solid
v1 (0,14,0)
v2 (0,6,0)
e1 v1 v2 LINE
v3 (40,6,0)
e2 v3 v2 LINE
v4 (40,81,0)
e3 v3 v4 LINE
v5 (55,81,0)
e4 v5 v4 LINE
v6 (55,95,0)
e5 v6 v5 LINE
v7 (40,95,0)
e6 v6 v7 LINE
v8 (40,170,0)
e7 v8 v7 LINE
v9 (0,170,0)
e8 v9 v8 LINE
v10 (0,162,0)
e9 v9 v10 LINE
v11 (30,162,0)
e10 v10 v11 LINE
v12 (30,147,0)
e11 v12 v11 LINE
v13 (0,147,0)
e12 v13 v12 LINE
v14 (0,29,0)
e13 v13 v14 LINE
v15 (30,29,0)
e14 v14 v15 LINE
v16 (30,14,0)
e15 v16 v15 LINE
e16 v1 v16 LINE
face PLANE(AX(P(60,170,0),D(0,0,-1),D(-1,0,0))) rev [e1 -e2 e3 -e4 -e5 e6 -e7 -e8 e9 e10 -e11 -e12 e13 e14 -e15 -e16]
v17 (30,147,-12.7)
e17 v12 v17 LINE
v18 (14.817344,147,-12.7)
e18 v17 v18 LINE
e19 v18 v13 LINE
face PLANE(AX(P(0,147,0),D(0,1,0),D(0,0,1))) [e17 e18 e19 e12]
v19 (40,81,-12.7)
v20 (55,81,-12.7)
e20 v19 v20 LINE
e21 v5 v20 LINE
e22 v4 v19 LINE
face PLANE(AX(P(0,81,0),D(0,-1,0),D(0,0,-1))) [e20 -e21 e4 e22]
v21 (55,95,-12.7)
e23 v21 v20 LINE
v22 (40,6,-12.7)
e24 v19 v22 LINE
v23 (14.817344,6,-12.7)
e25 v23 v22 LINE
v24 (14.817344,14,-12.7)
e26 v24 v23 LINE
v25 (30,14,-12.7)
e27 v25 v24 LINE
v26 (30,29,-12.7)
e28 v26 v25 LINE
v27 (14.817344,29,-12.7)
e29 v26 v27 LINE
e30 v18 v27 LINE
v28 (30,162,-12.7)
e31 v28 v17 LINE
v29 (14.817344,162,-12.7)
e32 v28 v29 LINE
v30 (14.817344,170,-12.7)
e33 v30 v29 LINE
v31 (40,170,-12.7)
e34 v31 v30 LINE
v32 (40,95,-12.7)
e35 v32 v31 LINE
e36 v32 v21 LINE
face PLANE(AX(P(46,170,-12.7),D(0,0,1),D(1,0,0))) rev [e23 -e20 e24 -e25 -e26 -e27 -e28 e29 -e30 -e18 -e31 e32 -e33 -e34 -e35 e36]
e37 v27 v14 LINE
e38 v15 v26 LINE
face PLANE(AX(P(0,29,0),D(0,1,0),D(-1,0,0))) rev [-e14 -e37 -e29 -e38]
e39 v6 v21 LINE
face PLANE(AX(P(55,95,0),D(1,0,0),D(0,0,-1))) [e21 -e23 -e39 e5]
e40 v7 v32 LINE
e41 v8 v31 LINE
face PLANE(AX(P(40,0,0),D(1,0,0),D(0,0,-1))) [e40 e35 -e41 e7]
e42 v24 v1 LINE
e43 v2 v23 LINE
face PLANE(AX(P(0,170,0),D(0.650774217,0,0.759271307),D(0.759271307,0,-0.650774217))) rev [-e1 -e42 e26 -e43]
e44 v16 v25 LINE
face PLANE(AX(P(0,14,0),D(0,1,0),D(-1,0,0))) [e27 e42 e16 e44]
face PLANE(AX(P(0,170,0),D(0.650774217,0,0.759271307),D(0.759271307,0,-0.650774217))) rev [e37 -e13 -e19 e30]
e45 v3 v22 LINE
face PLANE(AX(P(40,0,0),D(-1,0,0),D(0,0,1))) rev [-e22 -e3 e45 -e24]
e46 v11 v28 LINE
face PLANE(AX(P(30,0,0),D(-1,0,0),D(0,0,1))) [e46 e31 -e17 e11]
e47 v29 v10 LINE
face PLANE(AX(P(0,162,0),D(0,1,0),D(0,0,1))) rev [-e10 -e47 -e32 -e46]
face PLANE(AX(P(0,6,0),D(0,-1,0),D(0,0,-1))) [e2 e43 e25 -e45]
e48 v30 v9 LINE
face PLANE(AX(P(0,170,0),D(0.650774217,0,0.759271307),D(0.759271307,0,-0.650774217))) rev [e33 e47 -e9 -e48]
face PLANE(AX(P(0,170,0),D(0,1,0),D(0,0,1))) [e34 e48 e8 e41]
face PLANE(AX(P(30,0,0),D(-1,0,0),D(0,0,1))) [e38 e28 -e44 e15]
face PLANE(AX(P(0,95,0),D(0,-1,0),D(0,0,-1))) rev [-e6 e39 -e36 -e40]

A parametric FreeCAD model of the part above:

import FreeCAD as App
import Part
import Sketcher
Q = App.Units.Quantity

doc = App.newDocument("Part")
body = doc.addObject("PartDesign::Body", "Body")

# Sketch on XZ plane
sketch1 = doc.addObject("Sketcher::SketchObject", "Sketch")
body.addObject(sketch1)
sketch1.AttachmentSupport = (doc.XZ_Plane, [""])
sketch1.MapMode = "FlatFace"
sketch1.addGeometry([
    Part.LineSegment(App.Vector(18, -15, 0), App.Vector(0, 0, 0)),
    Part.LineSegment(App.Vector(0, 0, 0), App.Vector(60, 0, 0)),
    Part.LineSegment(App.Vector(60, 0, 0), App.Vector(60, -15, 0)),
    Part.LineSegment(App.Vector(60, -15, 0), App.Vector(18, -15, 0)),
], False)
sketch1.addConstraint([
    Sketcher.Constraint("Coincident", 0, 2, 1, 1),
    Sketcher.Constraint("Coincident", 1, 2, 2, 1),
    Sketcher.Constraint("Coincident", 2, 2, 3, 1),
    Sketcher.Constraint("Coincident", 3, 2, 0, 1),
    Sketcher.Constraint("Horizontal", 1),
    Sketcher.Constraint("Vertical", 2),
    Sketcher.Constraint("Horizontal", 3),
    Sketcher.Constraint("Coincident", 0, 2, -1, 1),
    Sketcher.Constraint("DistanceX", 1, 1, 1, 2, Q("60 mm")),
    Sketcher.Constraint("DistanceY", 2, 2, 2, 1, Q("15 mm")),
    Sketcher.Constraint("Angle", 0, Q("139.4 deg")),
])
pad1 = doc.addObject("PartDesign::Pad", "Pad")
body.addObject(pad1)
pad1.Profile = sketch1
pad1.Length = 170
pad1.Reversed = True

# Sketch on XY plane
sketch2 = doc.addObject("Sketcher::SketchObject", "Sketch001")
body.addObject(sketch2)
sketch2.AttachmentSupport = (doc.XY_Plane, [""])
sketch2.MapMode = "FlatFace"
sketch2.AttachmentOffset = App.Placement(App.Vector(0, 0, -15), App.Rotation())
sketch2.addGeometry([
    Part.LineSegment(App.Vector(60, 27, 0), App.Vector(60, 0, 0)),  # 0
    Part.LineSegment(App.Vector(60, 0, 0), App.Vector(52, 0, 0)),  # 1
    Part.LineSegment(App.Vector(52, 0, 0), App.Vector(52, 27, 0)),  # 2
    Part.LineSegment(App.Vector(52, 27, 0), App.Vector(60, 27, 0)),  # 3
    Part.LineSegment(App.Vector(60, 170, 0), App.Vector(60, 143, 0)),  # 4
    Part.LineSegment(App.Vector(60, 143, 0), App.Vector(52, 143, 0)),  # 5
    Part.LineSegment(App.Vector(52, 143, 0), App.Vector(52, 170, 0)),  # 6
    Part.LineSegment(App.Vector(52, 170, 0), App.Vector(60, 170, 0)),  # 7
], False)
sketch2.addConstraint([
    Sketcher.Constraint("Coincident", 0, 2, 1, 1),
    Sketcher.Constraint("Coincident", 1, 2, 2, 1),
    Sketcher.Constraint("Coincident", 2, 2, 3, 1),
    Sketcher.Constraint("Coincident", 3, 2, 0, 1),
    Sketcher.Constraint("Coincident", 4, 2, 5, 1),
    Sketcher.Constraint("Coincident", 5, 2, 6, 1),
    Sketcher.Constraint("Coincident", 6, 2, 7, 1),
    Sketcher.Constraint("Coincident", 7, 2, 4, 1),
    Sketcher.Constraint("Vertical", 0),
    Sketcher.Constraint("Horizontal", 1),
    Sketcher.Constraint("Vertical", 2),
    Sketcher.Constraint("Horizontal", 3),
    Sketcher.Constraint("Vertical", 4),
    Sketcher.Constraint("Horizontal", 5),
    Sketcher.Constraint("Vertical", 6),
    Sketcher.Constraint("Horizontal", 7),
    Sketcher.Constraint("PointOnObject", 0, 2, -1),
    Sketcher.Constraint("Vertical", 3, 2, 4, 2),
    Sketcher.Constraint("Vertical", 2, 2, 5, 2),
    Sketcher.Constraint("Equal", 2, 4),
    Sketcher.Constraint("DistanceX", 1, 2, 1, 1, Q("8 mm")),
    Sketcher.Constraint("DistanceY", 0, 2, 0, 1, Q("27 mm")),
    Sketcher.Constraint("DistanceX", -1, 1, 0, 2, Q("60 mm")),
    Sketcher.Constraint("DistanceY", -1, 1, 4, 2, Q("143 mm")),
])
pocket1 = doc.addObject("PartDesign::Pocket", "Pocket")
body.addObject(pocket1)
pocket1.Profile = sketch2
pocket1.Type = "ThroughAll"
pocket1.Midplane = True

# Sketch on XY plane
sketch3 = doc.addObject("Sketcher::SketchObject", "Sketch002")
body.addObject(sketch3)
sketch3.AttachmentSupport = (doc.XY_Plane, [""])
sketch3.MapMode = "FlatFace"
sketch3.AttachmentOffset = App.Placement(App.Vector(0, 0, -15), App.Rotation())
sketch3.addGeometry([
    Part.LineSegment(App.Vector(84, 170, 0), App.Vector(84, -6, 0)),
    Part.LineSegment(App.Vector(84, -6, 0), App.Vector(46, -6, 0)),
    Part.LineSegment(App.Vector(46, -6, 0), App.Vector(46, 170, 0)),
    Part.LineSegment(App.Vector(46, 170, 0), App.Vector(84, 170, 0)),
], False)
sketch3.addConstraint([
    Sketcher.Constraint("Coincident", 0, 2, 1, 1),
    Sketcher.Constraint("Coincident", 1, 2, 2, 1),
    Sketcher.Constraint("Coincident", 2, 2, 3, 1),
    Sketcher.Constraint("Coincident", 3, 2, 0, 1),
    Sketcher.Constraint("Vertical", 0),
    Sketcher.Constraint("Horizontal", 1),
    Sketcher.Constraint("Vertical", 2),
    Sketcher.Constraint("Horizontal", 3),
    Sketcher.Constraint("DistanceX", -1, 1, 1, 2, Q("46 mm")),
    Sketcher.Constraint("DistanceY", -1, 1, 2, 2, Q("170 mm")),
    Sketcher.Constraint("DistanceX", 1, 2, 1, 1, Q("38.065119 mm")),
    Sketcher.Constraint("DistanceY", 0, 2, 0, 1, Q("175.826127 mm")),
])
pocket2 = doc.addObject("PartDesign::Pocket", "Pocket001")
body.addObject(pocket2)
pocket2.Profile = sketch3
pocket2.Type = "ThroughAll"
pocket2.Midplane = True

# Sketch on XZ plane
sketch4 = doc.addObject("Sketcher::SketchObject", "Sketch003")
body.addObject(sketch4)
sketch4.AttachmentSupport = (doc.XZ_Plane, [""])
sketch4.MapMode = "FlatFace"
sketch4.addGeometry([
    Part.LineSegment(App.Vector(10, -13, 0), App.Vector(10, -20, 0)),
    Part.LineSegment(App.Vector(10, -20, 0), App.Vector(46, -20, 0)),
    Part.LineSegment(App.Vector(46, -20, 0), App.Vector(46, -13, 0)),
    Part.LineSegment(App.Vector(46, -13, 0), App.Vector(10, -13, 0)),
], False)
sketch4.addConstraint([
    Sketcher.Constraint("Coincident", 0, 2, 1, 1),
    Sketcher.Constraint("Coincident", 1, 2, 2, 1),
    Sketcher.Constraint("Coincident", 2, 2, 3, 1),
    Sketcher.Constraint("Coincident", 3, 2, 0, 1),
    Sketcher.Constraint("Vertical", 0),
    Sketcher.Constraint("Horizontal", 1),
    Sketcher.Constraint("Vertical", 2),
    Sketcher.Constraint("Horizontal", 3),
    Sketcher.Constraint("DistanceX", -1, 1, 1, 2, Q("46 mm")),
    Sketcher.Constraint("DistanceY", 2, 2, -1, 1, Q("12.7 mm")),
    Sketcher.Constraint("DistanceX", 1, 1, 1, 2, Q("35.532252 mm")),
    Sketcher.Constraint("DistanceY", 0, 2, 0, 1, Q("7.536767 mm")),
])
pocket3 = doc.addObject("PartDesign::Pocket", "Pocket002")
body.addObject(pocket3)
pocket3.Profile = sketch4
pocket3.Type = "ThroughAll"
pocket3.Midplane = True

# Sketch on XY plane
sketch5 = doc.addObject("Sketcher::SketchObject", "Sketch004")
body.addObject(sketch5)
sketch5.AttachmentSupport = (doc.XY_Plane, [""])
sketch5.MapMode = "FlatFace"
sketch5.AttachmentOffset = App.Placement(App.Vector(0, 0, -12.7), App.Rotation())
sketch5.addGeometry([
    Part.LineSegment(App.Vector(0, 14, 0), App.Vector(0, 29, 0)),  # 0
    Part.LineSegment(App.Vector(0, 29, 0), App.Vector(30, 29, 0)),  # 1
    Part.LineSegment(App.Vector(30, 29, 0), App.Vector(30, 14, 0)),  # 2
    Part.LineSegment(App.Vector(30, 14, 0), App.Vector(0, 14, 0)),  # 3
    Part.LineSegment(App.Vector(46, 81, 0), App.Vector(46, 0, 0)),  # 4
    Part.LineSegment(App.Vector(46, 0, 0), App.Vector(0, 0, 0)),  # 5
    Part.LineSegment(App.Vector(0, 0, 0), App.Vector(0, 6, 0)),  # 6
    Part.LineSegment(App.Vector(0, 6, 0), App.Vector(40, 6, 0)),  # 7
    Part.LineSegment(App.Vector(40, 6, 0), App.Vector(40, 81, 0)),  # 8
    Part.LineSegment(App.Vector(40, 81, 0), App.Vector(46, 81, 0)),  # 9
    Part.LineSegment(App.Vector(46, 170, 0), App.Vector(46, 95, 0)),  # 10
    Part.LineSegment(App.Vector(46, 95, 0), App.Vector(40, 95, 0)),  # 11
    Part.LineSegment(App.Vector(40, 95, 0), App.Vector(40, 170, 0)),  # 12
    Part.LineSegment(App.Vector(40, 170, 0), App.Vector(46, 170, 0)),  # 13
    Part.LineSegment(App.Vector(30, 162, 0), App.Vector(30, 147, 0)),  # 14
    Part.LineSegment(App.Vector(30, 147, 0), App.Vector(0, 147, 0)),  # 15
    Part.LineSegment(App.Vector(0, 147, 0), App.Vector(0, 162, 0)),  # 16
    Part.LineSegment(App.Vector(0, 162, 0), App.Vector(30, 162, 0)),  # 17
], False)
sketch5.addConstraint([
    Sketcher.Constraint("Coincident", 0, 2, 1, 1),
    Sketcher.Constraint("Coincident", 1, 2, 2, 1),
    Sketcher.Constraint("Coincident", 2, 2, 3, 1),
    Sketcher.Constraint("Coincident", 3, 2, 0, 1),
    Sketcher.Constraint("Coincident", 4, 2, 5, 1),
    Sketcher.Constraint("Coincident", 5, 2, 6, 1),
    Sketcher.Constraint("Coincident", 6, 2, 7, 1),
    Sketcher.Constraint("Coincident", 7, 2, 8, 1),
    Sketcher.Constraint("Coincident", 8, 2, 9, 1),
    Sketcher.Constraint("Coincident", 9, 2, 4, 1),
    Sketcher.Constraint("Coincident", 10, 2, 11, 1),
    Sketcher.Constraint("Coincident", 11, 2, 12, 1),
    Sketcher.Constraint("Coincident", 12, 2, 13, 1),
    Sketcher.Constraint("Coincident", 13, 2, 10, 1),
    Sketcher.Constraint("Coincident", 14, 2, 15, 1),
    Sketcher.Constraint("Coincident", 15, 2, 16, 1),
    Sketcher.Constraint("Coincident", 16, 2, 17, 1),
    Sketcher.Constraint("Coincident", 17, 2, 14, 1),
    Sketcher.Constraint("Vertical", 0),
    Sketcher.Constraint("Horizontal", 1),
    Sketcher.Constraint("Vertical", 2),
    Sketcher.Constraint("Horizontal", 3),
    Sketcher.Constraint("Vertical", 4),
    Sketcher.Constraint("Horizontal", 5),
    Sketcher.Constraint("Vertical", 6),
    Sketcher.Constraint("Horizontal", 7),
    Sketcher.Constraint("Vertical", 8),
    Sketcher.Constraint("Horizontal", 9),
    Sketcher.Constraint("Vertical", 10),
    Sketcher.Constraint("Horizontal", 11),
    Sketcher.Constraint("Vertical", 12),
    Sketcher.Constraint("Horizontal", 13),
    Sketcher.Constraint("Vertical", 14),
    Sketcher.Constraint("Horizontal", 15),
    Sketcher.Constraint("Vertical", 16),
    Sketcher.Constraint("Horizontal", 17),
    Sketcher.Constraint("Coincident", 5, 2, -1, 1),
    Sketcher.Constraint("PointOnObject", 0, 2, -2),
    Sketcher.Constraint("PointOnObject", 15, 2, -2),
    Sketcher.Constraint("Vertical", 9, 2, 10, 2),
    Sketcher.Constraint("Vertical", 8, 2, 11, 2),
    Sketcher.Constraint("Vertical", 2, 2, 14, 2),
    Sketcher.Constraint("Equal", 13, 6),
    Sketcher.Constraint("Equal", 8, 10),
    Sketcher.Constraint("Equal", 2, 14),
    Sketcher.Constraint("DistanceX", 1, 1, 1, 2, Q("30 mm")),
    Sketcher.Constraint("DistanceX", 5, 2, 5, 1, Q("46 mm")),
    Sketcher.Constraint("DistanceX", 7, 1, 7, 2, Q("40 mm")),
    Sketcher.Constraint("DistanceY", 0, 1, 0, 2, Q("15 mm")),
    Sketcher.Constraint("DistanceY", 4, 2, 4, 1, Q("81 mm")),
    Sketcher.Constraint("DistanceY", -1, 1, 0, 2, Q("29 mm")),
    Sketcher.Constraint("DistanceY", -1, 1, 10, 2, Q("95 mm")),
    Sketcher.Constraint("DistanceY", -1, 1, 14, 2, Q("147 mm")),
])
pocket4 = doc.addObject("PartDesign::Pocket", "Pocket003")
body.addObject(pocket4)
pocket4.Profile = sketch5
pocket4.Type = "ThroughAll"
pocket4.Midplane = True

# Sketch on XY plane
sketch6 = doc.addObject("Sketcher::SketchObject", "Sketch005")
body.addObject(sketch6)
sketch6.AttachmentSupport = (doc.XY_Plane, [""])
sketch6.MapMode = "FlatFace"
sketch6.AttachmentOffset = App.Placement(App.Vector(0, 0, -12.7), App.Rotation())
sketch6.addGeometry([
    Part.LineSegment(App.Vector(55, 95, 0), App.Vector(55, 81, 0)),
    Part.LineSegment(App.Vector(55, 81, 0), App.Vector(46, 81, 0)),
    Part.LineSegment(App.Vector(46, 81, 0), App.Vector(46, 95, 0)),
    Part.LineSegment(App.Vector(46, 95, 0), App.Vector(55, 95, 0)),
], False)
sketch6.addConstraint([
    Sketcher.Constraint("Coincident", 0, 2, 1, 1),
    Sketcher.Constraint("Coincident", 1, 2, 2, 1),
    Sketcher.Constraint("Coincident", 2, 2, 3, 1),
    Sketcher.Constraint("Coincident", 3, 2, 0, 1),
    Sketcher.Constraint("Vertical", 0),
    Sketcher.Constraint("Horizontal", 1),
    Sketcher.Constraint("Vertical", 2),
    Sketcher.Constraint("Horizontal", 3),
    Sketcher.Constraint("DistanceX", 1, 2, 1, 1, Q("9 mm")),
    Sketcher.Constraint("DistanceY", 0, 2, 0, 1, Q("14 mm")),
    Sketcher.Constraint("DistanceX", -1, 1, 0, 2, Q("55 mm")),
    Sketcher.Constraint("DistanceY", -1, 1, 0, 2, Q("81 mm")),
])
pad2 = doc.addObject("PartDesign::Pad", "Pad001")
body.addObject(pad2)
pad2.Profile = sketch6
pad2.Length = 12.7

doc.recompute()
